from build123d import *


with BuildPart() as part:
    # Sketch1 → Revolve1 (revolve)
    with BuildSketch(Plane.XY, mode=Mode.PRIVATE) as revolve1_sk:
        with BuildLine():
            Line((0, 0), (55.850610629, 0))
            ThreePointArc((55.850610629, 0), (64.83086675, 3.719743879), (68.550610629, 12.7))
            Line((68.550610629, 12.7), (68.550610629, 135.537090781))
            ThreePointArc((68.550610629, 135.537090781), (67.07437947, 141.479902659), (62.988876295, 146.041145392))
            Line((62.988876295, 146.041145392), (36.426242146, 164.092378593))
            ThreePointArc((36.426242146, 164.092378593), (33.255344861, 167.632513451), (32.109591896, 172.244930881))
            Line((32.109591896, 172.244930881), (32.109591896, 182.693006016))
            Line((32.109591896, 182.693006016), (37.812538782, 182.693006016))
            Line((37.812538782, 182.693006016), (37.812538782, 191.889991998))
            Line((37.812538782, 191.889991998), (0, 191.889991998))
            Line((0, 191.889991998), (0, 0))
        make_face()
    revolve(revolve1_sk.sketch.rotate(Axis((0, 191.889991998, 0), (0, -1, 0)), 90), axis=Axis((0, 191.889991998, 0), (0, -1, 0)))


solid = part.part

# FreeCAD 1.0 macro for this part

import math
import FreeCAD as App
import Part
import Sketcher
from FreeCAD import Vector
Q = App.Units.Quantity

doc = App.newDocument("Part")
body = doc.addObject("PartDesign::Body", "Body")

sketch1 = body.newObject("Sketcher::SketchObject", "Sketch")
sketch1.AttachmentSupport = (doc.getObject("XY_Plane"), [""])
sketch1.MapMode = "FlatFace"
sketch1.addGeometry([
    Part.LineSegment(Vector(0, 0, 0), Vector(56, 0, 0)),
    Part.ArcOfCircle(Part.Circle(Vector(56, 13, 0), Vector(0, 0, 1), 13), math.radians(-90), math.radians(0)),
    Part.LineSegment(Vector(69, 13, 0), Vector(69, 136, 0)),
    Part.ArcOfCircle(Part.Circle(Vector(56, 136, 0), Vector(0, 0, 1), 13), math.radians(0), math.radians(56)),
    Part.LineSegment(Vector(63, 146, 0), Vector(36, 164, 0)),
    Part.ArcOfCircle(Part.Circle(Vector(42, 172, 0), Vector(0, 0, 1), 10), math.radians(180), math.radians(236)),
    Part.LineSegment(Vector(32, 172, 0), Vector(32, 183, 0)),
    Part.LineSegment(Vector(32, 183, 0), Vector(38, 183, 0)),
    Part.LineSegment(Vector(38, 183, 0), Vector(38, 192, 0)),
    Part.LineSegment(Vector(38, 192, 0), Vector(0, 192, 0)),
    Part.LineSegment(Vector(0, 192, 0), Vector(0, 0, 0)),
], False)
sketch1.addConstraint([
    Sketcher.Constraint("Tangent", 0, 2, 1, 1),
    Sketcher.Constraint("Tangent", 1, 2, 2, 1),
    Sketcher.Constraint("Tangent", 2, 2, 3, 1),
    Sketcher.Constraint("Tangent", 3, 2, 4, 1),
    Sketcher.Constraint("Tangent", 4, 2, 5, 2),
    Sketcher.Constraint("Tangent", 5, 1, 6, 1),
    Sketcher.Constraint("Coincident", 6, 2, 7, 1),
    Sketcher.Constraint("Coincident", 7, 2, 8, 1),
    Sketcher.Constraint("Coincident", 8, 2, 9, 1),
    Sketcher.Constraint("Coincident", 9, 2, 10, 1),
    Sketcher.Constraint("Coincident", 10, 2, 0, 1),
    Sketcher.Constraint("Horizontal", 0),
    Sketcher.Constraint("Vertical", 2),
    Sketcher.Constraint("Vertical", 6),
    Sketcher.Constraint("Horizontal", 7),
    Sketcher.Constraint("Vertical", 8),
    Sketcher.Constraint("Horizontal", 9),
    Sketcher.Constraint("Vertical", 10),
    Sketcher.Constraint("Coincident", 10, 2, -1, 1),
    Sketcher.Constraint("Equal", 1, 3),
    Sketcher.Constraint("Radius", 1, Q("0.5 in")),
    Sketcher.Constraint("Radius", 5, Q("9.8569 mm")),
    Sketcher.Constraint("DistanceX", 0, 1, 0, 2, Q("55.850611 mm")),
    Sketcher.Constraint("DistanceX", 9, 2, 9, 1, Q("37.812539 mm")),
    Sketcher.Constraint("DistanceY", 2, 1, 2, 2, Q("122.837091 mm")),
    Sketcher.Constraint("DistanceY", 10, 2, 10, 1, Q("191.889992 mm")),
    Sketcher.Constraint("DistanceX", 7, 1, 7, 2, Q("5.702947 mm")),
    Sketcher.Constraint("DistanceY", 6, 1, 6, 2, Q("10.448075 mm")),
    Sketcher.Constraint("DistanceY", 8, 1, 8, 2, Q("9.196986 mm")),
])
revolution = body.newObject("PartDesign::Revolution", "Revolution")
revolution.Profile = sketch1
revolution.ReferenceAxis = (sketch1, ["V_Axis"])
revolution.Angle = 360

doc.recompute()
